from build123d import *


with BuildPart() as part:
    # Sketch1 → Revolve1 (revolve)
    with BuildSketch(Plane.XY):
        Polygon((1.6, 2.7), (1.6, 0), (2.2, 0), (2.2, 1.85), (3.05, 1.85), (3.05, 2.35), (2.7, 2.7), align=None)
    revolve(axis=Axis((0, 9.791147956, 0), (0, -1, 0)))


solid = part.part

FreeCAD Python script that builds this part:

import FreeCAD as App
import Part
import Sketcher
from FreeCAD import Vector
Q = App.Units.Quantity

doc = App.newDocument("Part")
body = doc.addObject("PartDesign::Body", "Body")

# Sketch on XY plane
sketch1 = body.newObject("Sketcher::SketchObject", "Sketch")
sketch1.AttachmentSupport = (doc.getObject("XY_Plane"), [""])
sketch1.MapMode = "FlatFace"
sketch1.addGeometry([
    Part.LineSegment(Vector(1.6, 2.7, 0), Vector(1.6, 0, 0)),  # 0
    Part.LineSegment(Vector(1.6, 0, 0), Vector(2.2, 0, 0)),  # 1
    Part.LineSegment(Vector(2.2, 0, 0), Vector(2.2, 1.85, 0)),  # 2
    Part.LineSegment(Vector(2.2, 1.85, 0), Vector(3.05, 1.85, 0)),  # 3
    Part.LineSegment(Vector(3.05, 1.85, 0), Vector(3.05, 2.35, 0)),  # 4
    Part.LineSegment(Vector(3.05, 2.35, 0), Vector(2.7, 2.7, 0)),  # 5
    Part.LineSegment(Vector(2.7, 2.7, 0), Vector(1.6, 2.7, 0)),  # 6
], False)
sketch1.addConstraint([
    Sketcher.Constraint("Coincident", 0, 2, 1, 1),
    Sketcher.Constraint("Coincident", 1, 2, 2, 1),
    Sketcher.Constraint("Coincident", 2, 2, 3, 1),
    Sketcher.Constraint("Coincident", 3, 2, 4, 1),
    Sketcher.Constraint("Coincident", 4, 2, 5, 1),
    Sketcher.Constraint("Coincident", 5, 2, 6, 1),
    Sketcher.Constraint("Coincident", 6, 2, 0, 1),
    Sketcher.Constraint("Vertical", 0),
    Sketcher.Constraint("Horizontal", 1),
    Sketcher.Constraint("Vertical", 2),
    Sketcher.Constraint("Horizontal", 3),
    Sketcher.Constraint("Vertical", 4),
    Sketcher.Constraint("Horizontal", 6),
    Sketcher.Constraint("PointOnObject", 0, 2, -1),
    Sketcher.Constraint("Angle", 5, Q("135 deg")),
    Sketcher.Constraint("DistanceX", 1, 1, 1, 2, Q("0.6 mm")),
    Sketcher.Constraint("DistanceX", 6, 2, 6, 1, Q("1.1 mm")),
    Sketcher.Constraint("DistanceY", 0, 2, 0, 1, Q("2.7 mm")),
    Sketcher.Constraint("DistanceY", 4, 1, 4, 2, Q("0.5 mm")),
    Sketcher.Constraint("DistanceX", 3, 1, 3, 2, Q("0.85 mm")),
    Sketcher.Constraint("DistanceX", -1, 1, 0, 2, Q("1.6 mm")),
])
revolution = body.newObject("PartDesign::Revolution", "Revolution")
revolution.Profile = sketch1
revolution.ReferenceAxis = (sketch1, ["V_Axis"])
revolution.Angle = 360

doc.recompute()
